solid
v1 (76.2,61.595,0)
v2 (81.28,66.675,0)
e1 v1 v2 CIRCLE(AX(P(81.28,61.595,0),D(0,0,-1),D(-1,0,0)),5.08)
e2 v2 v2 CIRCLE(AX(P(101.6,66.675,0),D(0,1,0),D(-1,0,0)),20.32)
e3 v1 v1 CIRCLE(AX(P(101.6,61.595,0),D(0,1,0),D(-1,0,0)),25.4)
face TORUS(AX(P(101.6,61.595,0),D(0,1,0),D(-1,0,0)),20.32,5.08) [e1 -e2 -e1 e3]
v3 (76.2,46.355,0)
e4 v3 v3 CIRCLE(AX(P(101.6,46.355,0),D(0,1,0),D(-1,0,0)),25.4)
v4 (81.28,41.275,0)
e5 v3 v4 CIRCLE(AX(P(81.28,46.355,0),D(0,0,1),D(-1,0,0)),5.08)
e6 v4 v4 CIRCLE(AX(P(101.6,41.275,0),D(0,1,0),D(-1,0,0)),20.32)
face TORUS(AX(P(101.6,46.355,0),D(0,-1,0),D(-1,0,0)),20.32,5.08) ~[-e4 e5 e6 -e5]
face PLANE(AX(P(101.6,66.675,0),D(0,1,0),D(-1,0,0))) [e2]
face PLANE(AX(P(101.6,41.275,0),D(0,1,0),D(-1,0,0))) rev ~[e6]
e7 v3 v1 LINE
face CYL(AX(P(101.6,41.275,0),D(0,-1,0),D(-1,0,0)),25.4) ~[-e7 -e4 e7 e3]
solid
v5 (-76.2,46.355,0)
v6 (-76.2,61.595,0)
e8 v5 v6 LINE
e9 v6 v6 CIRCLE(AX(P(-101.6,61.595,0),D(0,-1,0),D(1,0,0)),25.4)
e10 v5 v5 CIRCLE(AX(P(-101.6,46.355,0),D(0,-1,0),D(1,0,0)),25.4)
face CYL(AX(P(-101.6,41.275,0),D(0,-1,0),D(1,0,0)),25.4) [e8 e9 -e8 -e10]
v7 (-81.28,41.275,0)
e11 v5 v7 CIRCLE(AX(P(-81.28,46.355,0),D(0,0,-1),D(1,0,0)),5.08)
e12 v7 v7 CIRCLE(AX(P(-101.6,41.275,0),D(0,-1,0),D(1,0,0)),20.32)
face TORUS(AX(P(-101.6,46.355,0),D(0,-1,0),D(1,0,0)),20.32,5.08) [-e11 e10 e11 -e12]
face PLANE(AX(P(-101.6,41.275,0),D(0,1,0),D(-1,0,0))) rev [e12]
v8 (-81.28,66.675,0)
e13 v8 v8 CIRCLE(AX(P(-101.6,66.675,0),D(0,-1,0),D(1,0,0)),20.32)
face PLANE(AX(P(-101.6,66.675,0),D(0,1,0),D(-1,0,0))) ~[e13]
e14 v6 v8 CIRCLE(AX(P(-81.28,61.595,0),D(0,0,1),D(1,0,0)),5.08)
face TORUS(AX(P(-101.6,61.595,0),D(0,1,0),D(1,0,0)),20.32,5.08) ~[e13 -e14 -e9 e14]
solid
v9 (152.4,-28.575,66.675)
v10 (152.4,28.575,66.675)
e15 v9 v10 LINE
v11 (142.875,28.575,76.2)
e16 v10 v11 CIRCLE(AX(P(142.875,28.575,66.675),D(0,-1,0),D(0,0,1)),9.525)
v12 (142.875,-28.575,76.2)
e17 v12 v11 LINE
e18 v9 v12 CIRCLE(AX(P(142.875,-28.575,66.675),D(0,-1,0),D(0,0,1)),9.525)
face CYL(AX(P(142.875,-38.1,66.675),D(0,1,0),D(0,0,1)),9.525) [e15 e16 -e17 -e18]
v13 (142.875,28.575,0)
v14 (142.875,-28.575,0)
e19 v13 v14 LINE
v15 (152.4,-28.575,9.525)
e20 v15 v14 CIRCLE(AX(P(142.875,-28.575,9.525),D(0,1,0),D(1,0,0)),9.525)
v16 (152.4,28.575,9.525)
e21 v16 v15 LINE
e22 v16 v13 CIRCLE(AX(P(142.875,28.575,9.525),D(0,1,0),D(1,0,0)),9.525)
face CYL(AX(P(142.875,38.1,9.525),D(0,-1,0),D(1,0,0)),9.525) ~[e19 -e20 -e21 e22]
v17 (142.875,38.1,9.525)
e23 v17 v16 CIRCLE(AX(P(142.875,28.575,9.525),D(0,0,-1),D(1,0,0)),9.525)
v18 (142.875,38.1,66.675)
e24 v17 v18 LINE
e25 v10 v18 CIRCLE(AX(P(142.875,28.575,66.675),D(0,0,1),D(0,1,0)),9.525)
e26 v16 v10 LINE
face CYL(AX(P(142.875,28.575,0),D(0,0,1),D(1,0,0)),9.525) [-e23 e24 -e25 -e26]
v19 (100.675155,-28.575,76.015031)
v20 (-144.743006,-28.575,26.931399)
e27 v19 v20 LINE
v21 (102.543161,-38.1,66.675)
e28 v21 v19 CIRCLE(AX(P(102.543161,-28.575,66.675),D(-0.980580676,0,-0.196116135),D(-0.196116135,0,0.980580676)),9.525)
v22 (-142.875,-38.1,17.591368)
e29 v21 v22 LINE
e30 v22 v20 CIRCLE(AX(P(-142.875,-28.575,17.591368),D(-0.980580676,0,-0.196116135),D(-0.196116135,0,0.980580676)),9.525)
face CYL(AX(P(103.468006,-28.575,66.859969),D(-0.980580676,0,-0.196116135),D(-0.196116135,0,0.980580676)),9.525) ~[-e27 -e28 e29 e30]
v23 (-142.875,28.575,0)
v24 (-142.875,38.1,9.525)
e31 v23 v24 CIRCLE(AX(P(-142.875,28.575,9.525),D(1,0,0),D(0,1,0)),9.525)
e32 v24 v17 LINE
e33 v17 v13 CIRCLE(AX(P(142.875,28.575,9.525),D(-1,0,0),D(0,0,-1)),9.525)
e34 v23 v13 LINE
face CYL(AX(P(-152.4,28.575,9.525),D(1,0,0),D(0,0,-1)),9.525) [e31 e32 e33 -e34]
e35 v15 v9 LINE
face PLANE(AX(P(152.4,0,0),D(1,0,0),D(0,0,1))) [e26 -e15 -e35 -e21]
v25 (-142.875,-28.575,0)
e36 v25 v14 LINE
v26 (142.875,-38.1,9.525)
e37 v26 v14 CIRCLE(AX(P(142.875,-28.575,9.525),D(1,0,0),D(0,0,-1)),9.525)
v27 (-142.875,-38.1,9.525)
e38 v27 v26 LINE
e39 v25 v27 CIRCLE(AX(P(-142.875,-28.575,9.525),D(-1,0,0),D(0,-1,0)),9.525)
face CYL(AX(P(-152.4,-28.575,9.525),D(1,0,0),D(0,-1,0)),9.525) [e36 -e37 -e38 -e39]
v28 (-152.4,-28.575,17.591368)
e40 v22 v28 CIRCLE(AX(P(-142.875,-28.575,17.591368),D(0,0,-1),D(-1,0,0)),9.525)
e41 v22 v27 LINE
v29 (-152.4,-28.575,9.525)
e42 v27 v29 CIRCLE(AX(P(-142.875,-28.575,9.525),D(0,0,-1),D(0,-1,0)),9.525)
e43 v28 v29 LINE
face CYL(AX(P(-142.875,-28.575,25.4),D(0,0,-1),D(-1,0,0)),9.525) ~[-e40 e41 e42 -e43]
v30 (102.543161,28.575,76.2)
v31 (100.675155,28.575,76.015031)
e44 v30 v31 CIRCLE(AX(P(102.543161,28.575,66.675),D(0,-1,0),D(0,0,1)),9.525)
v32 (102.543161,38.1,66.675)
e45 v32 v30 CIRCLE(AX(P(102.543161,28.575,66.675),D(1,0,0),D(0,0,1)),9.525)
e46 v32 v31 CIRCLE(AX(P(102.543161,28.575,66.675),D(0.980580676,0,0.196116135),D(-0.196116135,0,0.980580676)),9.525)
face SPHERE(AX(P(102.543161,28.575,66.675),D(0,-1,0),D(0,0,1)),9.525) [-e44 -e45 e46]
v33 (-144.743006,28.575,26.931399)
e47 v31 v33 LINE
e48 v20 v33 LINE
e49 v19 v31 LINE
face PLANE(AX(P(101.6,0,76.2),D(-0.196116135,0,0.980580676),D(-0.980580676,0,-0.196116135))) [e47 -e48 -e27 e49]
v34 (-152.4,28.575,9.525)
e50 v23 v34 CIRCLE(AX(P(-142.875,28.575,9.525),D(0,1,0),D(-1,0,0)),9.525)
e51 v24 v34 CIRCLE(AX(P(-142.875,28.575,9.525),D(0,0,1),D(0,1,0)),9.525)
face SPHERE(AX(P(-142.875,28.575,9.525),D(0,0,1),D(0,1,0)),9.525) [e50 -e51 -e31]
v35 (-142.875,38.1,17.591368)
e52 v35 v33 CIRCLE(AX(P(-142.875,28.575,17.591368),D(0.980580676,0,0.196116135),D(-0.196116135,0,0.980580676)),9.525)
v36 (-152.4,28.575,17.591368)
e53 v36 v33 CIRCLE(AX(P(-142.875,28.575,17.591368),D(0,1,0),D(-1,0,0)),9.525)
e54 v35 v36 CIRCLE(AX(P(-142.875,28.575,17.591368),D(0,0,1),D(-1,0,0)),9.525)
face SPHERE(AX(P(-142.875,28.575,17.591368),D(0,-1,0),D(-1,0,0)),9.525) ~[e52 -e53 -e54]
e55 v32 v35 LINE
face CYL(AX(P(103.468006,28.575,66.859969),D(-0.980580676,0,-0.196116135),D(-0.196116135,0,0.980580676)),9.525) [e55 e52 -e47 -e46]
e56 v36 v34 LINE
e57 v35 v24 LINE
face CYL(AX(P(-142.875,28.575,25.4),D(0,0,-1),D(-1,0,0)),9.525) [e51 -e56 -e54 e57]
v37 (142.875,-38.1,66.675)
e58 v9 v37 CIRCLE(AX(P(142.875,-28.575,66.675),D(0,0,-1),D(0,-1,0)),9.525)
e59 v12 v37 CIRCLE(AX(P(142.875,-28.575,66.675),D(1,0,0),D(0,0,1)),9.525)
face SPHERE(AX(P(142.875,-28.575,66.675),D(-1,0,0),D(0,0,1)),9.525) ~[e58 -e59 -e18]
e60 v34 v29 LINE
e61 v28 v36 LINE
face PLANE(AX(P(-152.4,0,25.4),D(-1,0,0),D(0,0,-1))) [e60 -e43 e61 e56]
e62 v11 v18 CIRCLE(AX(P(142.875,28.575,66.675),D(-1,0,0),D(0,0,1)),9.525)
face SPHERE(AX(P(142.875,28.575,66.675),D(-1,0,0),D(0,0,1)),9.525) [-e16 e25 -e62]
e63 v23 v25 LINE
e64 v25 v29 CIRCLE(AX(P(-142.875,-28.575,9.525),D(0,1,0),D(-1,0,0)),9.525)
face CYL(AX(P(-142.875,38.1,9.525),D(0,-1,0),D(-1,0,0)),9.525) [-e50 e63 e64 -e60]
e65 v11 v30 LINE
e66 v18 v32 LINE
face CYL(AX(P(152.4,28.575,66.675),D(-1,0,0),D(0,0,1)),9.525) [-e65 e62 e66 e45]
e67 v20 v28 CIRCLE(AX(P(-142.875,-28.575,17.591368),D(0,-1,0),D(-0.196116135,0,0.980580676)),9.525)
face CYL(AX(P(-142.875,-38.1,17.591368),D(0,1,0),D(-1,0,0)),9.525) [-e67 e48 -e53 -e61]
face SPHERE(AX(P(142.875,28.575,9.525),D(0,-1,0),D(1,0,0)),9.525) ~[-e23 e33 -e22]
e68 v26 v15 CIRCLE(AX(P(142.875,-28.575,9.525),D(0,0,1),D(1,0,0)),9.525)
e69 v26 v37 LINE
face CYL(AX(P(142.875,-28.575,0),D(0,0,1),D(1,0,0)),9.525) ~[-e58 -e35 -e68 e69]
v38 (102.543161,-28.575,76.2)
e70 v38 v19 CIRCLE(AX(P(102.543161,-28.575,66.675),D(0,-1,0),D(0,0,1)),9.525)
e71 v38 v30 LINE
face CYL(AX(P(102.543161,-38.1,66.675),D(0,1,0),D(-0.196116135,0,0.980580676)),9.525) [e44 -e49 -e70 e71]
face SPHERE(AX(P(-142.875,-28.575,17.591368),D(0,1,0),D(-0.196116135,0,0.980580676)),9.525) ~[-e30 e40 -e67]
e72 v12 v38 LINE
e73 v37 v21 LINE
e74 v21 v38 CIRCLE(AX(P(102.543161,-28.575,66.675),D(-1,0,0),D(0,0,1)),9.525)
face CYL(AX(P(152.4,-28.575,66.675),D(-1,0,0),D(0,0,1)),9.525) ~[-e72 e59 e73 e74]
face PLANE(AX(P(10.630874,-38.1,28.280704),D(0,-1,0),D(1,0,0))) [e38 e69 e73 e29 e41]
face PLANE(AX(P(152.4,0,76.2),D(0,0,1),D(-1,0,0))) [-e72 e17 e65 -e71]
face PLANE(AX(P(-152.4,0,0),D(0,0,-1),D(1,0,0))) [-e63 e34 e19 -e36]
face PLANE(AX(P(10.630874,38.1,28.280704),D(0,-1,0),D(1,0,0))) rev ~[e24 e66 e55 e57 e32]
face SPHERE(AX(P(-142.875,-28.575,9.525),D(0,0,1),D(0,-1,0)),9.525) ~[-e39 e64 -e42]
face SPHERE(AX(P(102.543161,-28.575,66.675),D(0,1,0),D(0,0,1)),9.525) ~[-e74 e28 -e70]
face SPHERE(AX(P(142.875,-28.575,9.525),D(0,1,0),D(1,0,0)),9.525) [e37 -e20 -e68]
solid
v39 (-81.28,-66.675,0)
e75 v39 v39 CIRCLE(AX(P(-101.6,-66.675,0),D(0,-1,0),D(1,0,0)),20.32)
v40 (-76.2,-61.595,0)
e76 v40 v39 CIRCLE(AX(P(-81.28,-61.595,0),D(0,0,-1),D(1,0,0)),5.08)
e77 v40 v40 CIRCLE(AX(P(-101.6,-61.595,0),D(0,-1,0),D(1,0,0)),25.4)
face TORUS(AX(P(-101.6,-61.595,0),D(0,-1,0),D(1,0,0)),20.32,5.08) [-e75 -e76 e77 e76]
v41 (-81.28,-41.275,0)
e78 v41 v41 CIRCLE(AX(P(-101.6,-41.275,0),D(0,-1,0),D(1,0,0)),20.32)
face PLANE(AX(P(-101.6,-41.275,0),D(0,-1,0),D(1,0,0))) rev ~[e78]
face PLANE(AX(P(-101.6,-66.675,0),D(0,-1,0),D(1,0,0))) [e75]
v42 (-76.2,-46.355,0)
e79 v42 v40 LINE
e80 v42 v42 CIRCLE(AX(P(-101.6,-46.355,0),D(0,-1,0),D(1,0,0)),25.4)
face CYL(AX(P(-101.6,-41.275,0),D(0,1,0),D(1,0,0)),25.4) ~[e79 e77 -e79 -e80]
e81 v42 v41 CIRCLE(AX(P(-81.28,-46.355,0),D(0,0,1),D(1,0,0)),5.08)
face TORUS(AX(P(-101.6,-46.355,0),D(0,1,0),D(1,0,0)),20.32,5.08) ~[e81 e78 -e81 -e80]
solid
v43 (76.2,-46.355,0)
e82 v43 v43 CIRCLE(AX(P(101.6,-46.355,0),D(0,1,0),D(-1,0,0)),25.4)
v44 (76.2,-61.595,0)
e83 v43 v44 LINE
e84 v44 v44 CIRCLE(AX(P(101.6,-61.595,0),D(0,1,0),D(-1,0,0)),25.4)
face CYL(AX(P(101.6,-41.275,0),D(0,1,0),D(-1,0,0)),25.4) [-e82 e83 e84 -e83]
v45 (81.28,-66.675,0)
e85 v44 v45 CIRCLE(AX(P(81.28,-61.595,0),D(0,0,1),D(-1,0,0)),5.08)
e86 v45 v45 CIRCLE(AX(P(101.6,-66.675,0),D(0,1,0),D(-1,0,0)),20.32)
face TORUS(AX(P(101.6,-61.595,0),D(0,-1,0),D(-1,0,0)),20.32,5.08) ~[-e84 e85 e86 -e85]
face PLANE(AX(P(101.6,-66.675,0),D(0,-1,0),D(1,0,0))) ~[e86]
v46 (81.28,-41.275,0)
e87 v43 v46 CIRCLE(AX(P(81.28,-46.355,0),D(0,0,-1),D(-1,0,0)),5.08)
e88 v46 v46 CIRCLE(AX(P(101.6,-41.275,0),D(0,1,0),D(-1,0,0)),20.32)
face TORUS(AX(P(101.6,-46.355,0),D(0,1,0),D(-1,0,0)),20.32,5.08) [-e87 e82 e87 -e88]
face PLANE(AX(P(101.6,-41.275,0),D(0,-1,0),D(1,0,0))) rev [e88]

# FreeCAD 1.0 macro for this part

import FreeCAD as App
import Part
import Sketcher
from FreeCAD import Vector
Q = App.Units.Quantity


def edges_at(feature, points):
    """Names of the edges that pass closest to the given points."""
    edges = feature.Shape.Edges
    near = lambda p: min(range(len(edges)), key=lambda i: edges[i].distToShape(Part.Vertex(*p))[0])
    return sorted({f"Edge{near(p) + 1}" for p in points})

doc = App.newDocument("Part")
params = doc.addObject("Spreadsheet::Sheet", "Params")
for row, (alias, value) in enumerate([
    ("sketch1_width", "12 in"),
    ("sketch1_width2", "2 in"),
    ("sketch1_height", "1 in"),
    ("sketch1_height2", "3 in"),
    ("pad1_length", "3 in"),
    ("fillet_radius", "0.375 in"),
    ("sketch2_diameter", "2 in"),
    ("pad2_length", "1 in"),
    ("fillet2_radius", "0.2 in"),
], start=1):
    params.set(f"A{row}", alias)
    params.set(f"B{row}", "=" + value)
    params.setAlias(f"B{row}", alias)

body = doc.addObject("PartDesign::Body", "Body")

sketch1 = body.newObject("Sketcher::SketchObject", "Sketch")
sketch1.AttachmentSupport = (doc.getObject("XZ_Plane"), [""])
sketch1.MapMode = "FlatFace"
sketch1.addGeometry([
    Part.LineSegment(Vector(-152.4, 25.4, 0), Vector(-152.4, 0, 0)),
    Part.LineSegment(Vector(-152.4, 0, 0), Vector(152.4, 0, 0)),
    Part.LineSegment(Vector(152.4, 0, 0), Vector(152.4, 76.2, 0)),
    Part.LineSegment(Vector(152.4, 76.2, 0), Vector(101.6, 76.2, 0)),
    Part.LineSegment(Vector(101.6, 76.2, 0), Vector(-152.4, 25.4, 0)),
], False)
sketch1.addConstraint([
    Sketcher.Constraint("Coincident", 0, 2, 1, 1),
    Sketcher.Constraint("Coincident", 1, 2, 2, 1),
    Sketcher.Constraint("Coincident", 2, 2, 3, 1),
    Sketcher.Constraint("Coincident", 3, 2, 4, 1),
    Sketcher.Constraint("Coincident", 4, 2, 0, 1),
    Sketcher.Constraint("Vertical", 0),
    Sketcher.Constraint("Horizontal", 1),
    Sketcher.Constraint("Vertical", 2),
    Sketcher.Constraint("Horizontal", 3),
    Sketcher.Constraint("Symmetric", 0, 2, 1, 2, -1, 1),
    Sketcher.Constraint("DistanceX", 1, 1, 1, 2, Q("12 in")),
    Sketcher.Constraint("DistanceX", 3, 2, 3, 1, Q("2 in")),
    Sketcher.Constraint("DistanceY", 0, 2, 0, 1, Q("1 in")),
    Sketcher.Constraint("DistanceY", 2, 1, 2, 2, Q("3 in")),
])
sketch1.setExpression("Constraints[10]", "Params.sketch1_width")
sketch1.setExpression("Constraints[11]", "Params.sketch1_width2")
sketch1.setExpression("Constraints[12]", "Params.sketch1_height")
sketch1.setExpression("Constraints[13]", "Params.sketch1_height2")
pad1 = body.newObject("PartDesign::Pad", "Pad")
pad1.Profile = sketch1
pad1.setExpression("Length", "Params.pad1_length")
pad1.Midplane = True
doc.recompute()

fillet = body.newObject("PartDesign::Fillet", "Fillet")
fillet.Base = (pad1, ["Edge1"])
fillet.UseAllEdges = True
fillet.setExpression("Radius", "Params.fillet_radius")
body2 = doc.addObject("PartDesign::Body", "Body001")

sketch2 = body2.newObject("Sketcher::SketchObject", "Sketch001")
sketch2.AttachmentSupport = (doc.getObject("XZ_Plane001"), [""])
sketch2.MapMode = "FlatFace"
sketch2.AttachmentOffset = App.Placement(Vector(0, 0, 1.625 * 25.4), App.Rotation())
sketch2.addGeometry(Part.Circle(Vector(-101.6, 0, 0), Vector(0, 0, 1), 25.4), False)
sketch2.addConstraint([
    Sketcher.Constraint("PointOnObject", 0, 3, -1),
    Sketcher.Constraint("Diameter", 0, Q("2 in")),
    Sketcher.Constraint("DistanceX", 0, 3, -1, 1, Q("4 in")),
])
sketch2.setExpression("Constraints[1]", "Params.sketch2_diameter")
pad2 = body2.newObject("PartDesign::Pad", "Pad001")
pad2.Profile = sketch2
pad2.setExpression("Length", "Params.pad2_length")
doc.recompute()

fillet2 = body2.newObject("PartDesign::Fillet", "Fillet001")
fillet2.Base = (pad2, edges_at(pad2, [(-127, -66.675, 0), (-127, -41.275, 0)]))
fillet2.setExpression("Radius", "Params.fillet2_radius")
body3 = doc.addObject("PartDesign::Body", "Body002")
doc.recompute()

mirroring = doc.addObject("Part::Mirroring", "Mirroring")
mirroring.Source = body2
mirroring.Base = Vector(0, 0, 0)
mirroring.Normal = Vector(1, 0, 0)
body3.BaseFeature = mirroring
doc.recompute()
body4 = doc.addObject("PartDesign::Body", "Body003")
doc.recompute()

mirroring2 = doc.addObject("Part::Mirroring", "Mirroring001")
mirroring2.Source = body2
mirroring2.Base = Vector(0, 0, 0)
mirroring2.Normal = Vector(0, -1, 0)
body4.BaseFeature = mirroring2
doc.recompute()
body5 = doc.addObject("PartDesign::Body", "Body004")
doc.recompute()

mirroring3 = doc.addObject("Part::Mirroring", "Mirroring002")
mirroring3.Source = body3
mirroring3.Base = Vector(0, 0, 0)
mirroring3.Normal = Vector(0, -1, 0)
body5.BaseFeature = mirroring3
doc.recompute()
mirroring.Visibility = False
mirroring2.Visibility = False
mirroring3.Visibility = False

doc.recompute()
